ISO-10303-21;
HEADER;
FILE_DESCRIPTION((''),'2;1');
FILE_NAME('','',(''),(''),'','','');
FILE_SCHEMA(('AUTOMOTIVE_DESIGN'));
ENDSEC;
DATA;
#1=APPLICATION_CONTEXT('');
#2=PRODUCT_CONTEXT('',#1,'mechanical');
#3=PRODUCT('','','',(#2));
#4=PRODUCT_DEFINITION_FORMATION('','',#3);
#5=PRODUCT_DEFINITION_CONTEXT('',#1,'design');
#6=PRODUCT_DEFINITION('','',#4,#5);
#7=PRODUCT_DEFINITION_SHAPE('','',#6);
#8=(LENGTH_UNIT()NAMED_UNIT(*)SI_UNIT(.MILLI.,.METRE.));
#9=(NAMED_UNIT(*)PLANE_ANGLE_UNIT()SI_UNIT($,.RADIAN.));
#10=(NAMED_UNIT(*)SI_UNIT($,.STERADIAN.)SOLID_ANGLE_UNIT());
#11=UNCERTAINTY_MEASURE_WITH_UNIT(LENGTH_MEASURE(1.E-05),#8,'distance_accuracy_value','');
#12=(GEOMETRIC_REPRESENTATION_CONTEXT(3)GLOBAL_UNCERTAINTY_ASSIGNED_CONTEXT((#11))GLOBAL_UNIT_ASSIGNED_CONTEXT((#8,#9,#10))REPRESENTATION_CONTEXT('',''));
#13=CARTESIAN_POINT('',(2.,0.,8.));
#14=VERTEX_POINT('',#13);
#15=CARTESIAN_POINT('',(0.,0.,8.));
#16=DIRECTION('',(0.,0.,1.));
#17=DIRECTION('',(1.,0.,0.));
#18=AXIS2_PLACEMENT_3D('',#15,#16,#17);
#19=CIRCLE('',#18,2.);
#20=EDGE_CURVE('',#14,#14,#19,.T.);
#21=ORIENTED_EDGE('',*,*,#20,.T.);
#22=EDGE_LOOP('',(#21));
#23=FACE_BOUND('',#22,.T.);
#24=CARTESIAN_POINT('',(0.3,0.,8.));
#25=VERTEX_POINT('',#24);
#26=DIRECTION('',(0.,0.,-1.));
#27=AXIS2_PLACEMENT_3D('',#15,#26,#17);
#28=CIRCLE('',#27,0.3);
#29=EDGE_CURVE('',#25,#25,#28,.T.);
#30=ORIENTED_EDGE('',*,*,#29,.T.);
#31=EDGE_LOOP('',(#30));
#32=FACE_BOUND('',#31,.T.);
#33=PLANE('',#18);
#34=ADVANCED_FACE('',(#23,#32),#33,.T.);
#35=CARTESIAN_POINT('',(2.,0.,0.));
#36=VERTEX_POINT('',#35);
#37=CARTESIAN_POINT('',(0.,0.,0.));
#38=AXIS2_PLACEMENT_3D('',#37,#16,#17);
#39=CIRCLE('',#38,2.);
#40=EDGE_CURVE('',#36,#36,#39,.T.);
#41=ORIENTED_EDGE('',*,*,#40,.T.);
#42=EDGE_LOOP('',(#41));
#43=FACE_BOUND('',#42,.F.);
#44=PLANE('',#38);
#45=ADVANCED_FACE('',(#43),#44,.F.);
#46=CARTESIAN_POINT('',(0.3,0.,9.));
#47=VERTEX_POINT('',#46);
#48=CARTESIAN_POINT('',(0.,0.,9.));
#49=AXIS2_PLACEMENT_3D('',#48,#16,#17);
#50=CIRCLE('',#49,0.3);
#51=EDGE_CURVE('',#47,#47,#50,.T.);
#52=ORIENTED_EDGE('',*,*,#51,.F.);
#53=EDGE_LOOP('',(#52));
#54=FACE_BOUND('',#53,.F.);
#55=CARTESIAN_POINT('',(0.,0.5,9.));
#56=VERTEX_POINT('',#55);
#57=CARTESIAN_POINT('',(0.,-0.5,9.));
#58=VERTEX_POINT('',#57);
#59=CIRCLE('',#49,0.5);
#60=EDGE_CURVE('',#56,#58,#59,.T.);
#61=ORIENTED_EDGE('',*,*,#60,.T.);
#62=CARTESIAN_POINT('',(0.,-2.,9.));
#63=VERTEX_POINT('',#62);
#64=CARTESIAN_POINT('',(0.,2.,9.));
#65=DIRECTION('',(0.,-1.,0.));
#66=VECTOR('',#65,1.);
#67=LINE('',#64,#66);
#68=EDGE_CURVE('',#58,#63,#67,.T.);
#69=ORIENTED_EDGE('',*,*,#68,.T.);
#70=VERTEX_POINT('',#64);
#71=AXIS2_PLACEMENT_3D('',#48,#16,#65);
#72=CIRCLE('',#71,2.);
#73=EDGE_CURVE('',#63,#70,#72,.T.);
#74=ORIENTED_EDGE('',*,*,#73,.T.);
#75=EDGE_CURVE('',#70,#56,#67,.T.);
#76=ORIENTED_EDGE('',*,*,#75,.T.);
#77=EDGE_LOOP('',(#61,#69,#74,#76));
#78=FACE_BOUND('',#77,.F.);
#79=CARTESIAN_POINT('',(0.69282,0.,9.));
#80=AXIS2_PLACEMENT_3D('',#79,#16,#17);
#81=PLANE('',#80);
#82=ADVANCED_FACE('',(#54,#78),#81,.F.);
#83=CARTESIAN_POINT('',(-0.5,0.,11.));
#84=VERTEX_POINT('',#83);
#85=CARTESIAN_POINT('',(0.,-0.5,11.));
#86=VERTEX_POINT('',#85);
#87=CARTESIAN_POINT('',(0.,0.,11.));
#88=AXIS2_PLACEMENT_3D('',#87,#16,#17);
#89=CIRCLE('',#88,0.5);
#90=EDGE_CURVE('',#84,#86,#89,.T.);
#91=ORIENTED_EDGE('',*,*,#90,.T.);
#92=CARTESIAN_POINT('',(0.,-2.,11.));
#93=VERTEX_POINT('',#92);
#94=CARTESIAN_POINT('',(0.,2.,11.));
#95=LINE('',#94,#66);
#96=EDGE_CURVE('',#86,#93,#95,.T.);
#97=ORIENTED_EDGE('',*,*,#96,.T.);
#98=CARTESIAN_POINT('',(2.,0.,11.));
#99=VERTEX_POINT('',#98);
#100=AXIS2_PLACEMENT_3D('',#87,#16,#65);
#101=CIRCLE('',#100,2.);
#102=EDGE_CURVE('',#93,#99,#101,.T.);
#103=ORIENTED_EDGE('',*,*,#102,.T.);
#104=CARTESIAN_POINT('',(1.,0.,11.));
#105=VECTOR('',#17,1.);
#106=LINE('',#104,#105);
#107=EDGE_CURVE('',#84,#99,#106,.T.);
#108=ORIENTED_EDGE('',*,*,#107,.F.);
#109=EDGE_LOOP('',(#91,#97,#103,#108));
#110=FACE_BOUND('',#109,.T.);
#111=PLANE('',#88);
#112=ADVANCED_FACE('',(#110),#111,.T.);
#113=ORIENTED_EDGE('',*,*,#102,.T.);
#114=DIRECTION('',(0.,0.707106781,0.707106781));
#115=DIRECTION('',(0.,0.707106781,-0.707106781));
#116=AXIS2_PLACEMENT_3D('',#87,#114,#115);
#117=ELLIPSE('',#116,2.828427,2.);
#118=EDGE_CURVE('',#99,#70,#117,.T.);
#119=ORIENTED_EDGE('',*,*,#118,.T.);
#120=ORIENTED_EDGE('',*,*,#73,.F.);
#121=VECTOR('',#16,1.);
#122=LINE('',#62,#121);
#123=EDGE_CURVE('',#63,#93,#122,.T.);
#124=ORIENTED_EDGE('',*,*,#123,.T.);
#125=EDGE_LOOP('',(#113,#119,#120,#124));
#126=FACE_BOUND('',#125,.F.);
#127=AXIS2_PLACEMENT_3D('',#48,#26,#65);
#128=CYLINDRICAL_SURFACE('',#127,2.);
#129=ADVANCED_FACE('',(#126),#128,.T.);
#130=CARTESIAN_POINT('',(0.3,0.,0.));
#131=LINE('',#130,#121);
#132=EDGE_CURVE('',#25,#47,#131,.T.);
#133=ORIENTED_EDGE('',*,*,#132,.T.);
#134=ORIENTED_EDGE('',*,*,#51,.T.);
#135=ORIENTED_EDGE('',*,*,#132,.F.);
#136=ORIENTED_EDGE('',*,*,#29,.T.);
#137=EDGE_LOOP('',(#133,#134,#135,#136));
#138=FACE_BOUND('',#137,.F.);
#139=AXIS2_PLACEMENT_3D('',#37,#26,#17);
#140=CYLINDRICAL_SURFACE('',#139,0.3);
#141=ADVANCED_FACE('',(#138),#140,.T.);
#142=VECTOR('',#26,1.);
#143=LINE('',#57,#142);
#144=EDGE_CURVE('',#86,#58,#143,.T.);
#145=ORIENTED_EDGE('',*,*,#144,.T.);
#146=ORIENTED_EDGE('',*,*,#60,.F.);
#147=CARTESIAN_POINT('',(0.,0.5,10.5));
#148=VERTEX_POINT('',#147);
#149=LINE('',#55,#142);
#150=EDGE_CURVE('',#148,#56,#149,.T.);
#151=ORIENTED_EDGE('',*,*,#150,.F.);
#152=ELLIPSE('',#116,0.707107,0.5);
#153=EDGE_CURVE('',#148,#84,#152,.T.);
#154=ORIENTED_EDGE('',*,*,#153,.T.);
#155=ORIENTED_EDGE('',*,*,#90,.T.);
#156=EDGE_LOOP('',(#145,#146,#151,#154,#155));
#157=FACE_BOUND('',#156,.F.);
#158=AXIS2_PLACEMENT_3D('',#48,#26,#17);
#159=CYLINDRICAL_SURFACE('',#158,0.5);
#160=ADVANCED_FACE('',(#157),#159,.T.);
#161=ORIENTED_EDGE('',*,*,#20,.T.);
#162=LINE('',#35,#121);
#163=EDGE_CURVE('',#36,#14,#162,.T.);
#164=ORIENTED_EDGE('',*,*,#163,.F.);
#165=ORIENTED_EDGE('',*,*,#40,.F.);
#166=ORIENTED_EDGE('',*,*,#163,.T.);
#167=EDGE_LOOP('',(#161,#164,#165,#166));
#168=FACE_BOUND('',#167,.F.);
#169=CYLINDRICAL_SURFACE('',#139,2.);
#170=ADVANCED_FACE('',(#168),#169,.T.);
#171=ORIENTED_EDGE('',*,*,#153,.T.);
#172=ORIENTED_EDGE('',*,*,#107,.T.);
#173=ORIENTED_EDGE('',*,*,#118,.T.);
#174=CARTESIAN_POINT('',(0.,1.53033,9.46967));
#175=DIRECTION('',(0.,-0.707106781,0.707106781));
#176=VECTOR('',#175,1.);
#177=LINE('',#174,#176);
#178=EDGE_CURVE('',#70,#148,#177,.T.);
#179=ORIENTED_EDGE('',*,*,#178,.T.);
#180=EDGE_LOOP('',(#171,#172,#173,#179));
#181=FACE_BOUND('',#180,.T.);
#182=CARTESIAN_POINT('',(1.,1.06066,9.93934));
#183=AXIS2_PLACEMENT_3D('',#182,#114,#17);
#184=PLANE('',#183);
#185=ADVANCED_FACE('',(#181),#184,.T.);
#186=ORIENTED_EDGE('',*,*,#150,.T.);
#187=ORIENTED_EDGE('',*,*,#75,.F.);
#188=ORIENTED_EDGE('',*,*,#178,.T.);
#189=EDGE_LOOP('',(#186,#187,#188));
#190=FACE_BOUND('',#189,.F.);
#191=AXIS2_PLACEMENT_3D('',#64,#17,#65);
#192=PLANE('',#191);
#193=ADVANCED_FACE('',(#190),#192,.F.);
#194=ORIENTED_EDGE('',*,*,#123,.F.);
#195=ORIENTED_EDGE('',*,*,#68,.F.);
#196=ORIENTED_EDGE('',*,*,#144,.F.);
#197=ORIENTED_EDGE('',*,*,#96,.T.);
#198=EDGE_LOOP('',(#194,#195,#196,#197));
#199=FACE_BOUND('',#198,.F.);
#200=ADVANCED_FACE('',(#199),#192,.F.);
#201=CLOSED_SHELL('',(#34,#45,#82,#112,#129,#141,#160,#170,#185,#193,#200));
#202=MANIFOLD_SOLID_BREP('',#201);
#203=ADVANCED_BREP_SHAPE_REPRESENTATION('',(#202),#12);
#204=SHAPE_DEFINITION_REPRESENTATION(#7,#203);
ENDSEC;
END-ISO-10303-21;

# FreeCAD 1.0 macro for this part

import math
import FreeCAD as App
import Part
import Sketcher


def add_polygon(sketch, points):
    """Adds a closed chain of lines whose ends are joined by coincident constraints."""
    first, n = sketch.GeometryCount, len(points)
    for a, b in zip(points, points[1:] + points[:1]):
        sketch.addGeometry(Part.LineSegment(App.Vector(*a, 0), App.Vector(*b, 0)), False)
    for i in range(n):
        sketch.addConstraint(Sketcher.Constraint("Coincident", first + i, 2, first + (i + 1) % n, 1))

doc = App.newDocument("Part")
body = doc.addObject("PartDesign::Body", "Body")

sketch1 = body.newObject("Sketcher::SketchObject", "Sketch")
sketch1.AttachmentSupport = (doc.getObject("XY_Plane"), [""])
sketch1.MapMode = "FlatFace"
add_polygon(sketch1, [(0, 3), (0, 0), (4, 0), (4, 3)])
sketch1.addConstraint([
    Sketcher.Constraint("Vertical", 0),
    Sketcher.Constraint("Horizontal", 1),
    Sketcher.Constraint("Vertical", 2),
    Sketcher.Constraint("Horizontal", 3),
    Sketcher.Constraint("Coincident", 0, 2, -1, 1),
    Sketcher.Constraint("DistanceX", 1, 1, 1, 2, 4.0),
    Sketcher.Constraint("DistanceY", 0, 2, 0, 1, 3.0),
])
pad1 = body.newObject("PartDesign::Pad", "Pad")
pad1.Profile = sketch1
pad1.Length = 2
body2 = doc.addObject("PartDesign::Body", "Body001")
doc.recompute()

body.Placement = App.Placement(App.Vector(0, 0, 0), App.Rotation(App.Vector(1, 0, 0), 315))
boolean = body2.newObject("PartDesign::Boolean", "Boolean")
boolean.Type = "Fuse"
boolean.addObjects([body])
body3 = doc.addObject("PartDesign::Body", "Body002")
doc.recompute()

body2.Placement = App.Placement(App.Vector(-1, 0, 11), App.Rotation(App.Vector(0, 0, 1), 0))
boolean2 = body3.newObject("PartDesign::Boolean", "Boolean001")
boolean2.Type = "Fuse"
boolean2.addObjects([body2])
body4 = doc.addObject("PartDesign::Body", "Body003")

sketch2 = body4.newObject("Sketcher::SketchObject", "Sketch001")
sketch2.AttachmentSupport = (doc.getObject("XY_Plane003"), [""])
sketch2.MapMode = "FlatFace"
sketch2.addGeometry(Part.Circle(App.Vector(0, 0, 0), App.Vector(0, 0, 1), 0.3), False)
sketch2.addConstraint([
    Sketcher.Constraint("Coincident", 0, 3, -1, 1),
    Sketcher.Constraint("Diameter", 0, 0.6),
])
pad2 = body4.newObject("PartDesign::Pad", "Pad001")
pad2.Profile = sketch2
pad2.Length = 11
body5 = doc.addObject("PartDesign::Body", "Body004")

sketch3 = body5.newObject("Sketcher::SketchObject", "Sketch002")
sketch3.AttachmentSupport = (doc.getObject("XY_Plane004"), [""])
sketch3.MapMode = "FlatFace"
sketch3.addGeometry(Part.Circle(App.Vector(0, 0, 0), App.Vector(0, 0, 1), 2), False)
sketch3.addConstraint([
    Sketcher.Constraint("Coincident", 0, 3, -1, 1),
    Sketcher.Constraint("Diameter", 0, 4.0),
])
pad3 = body5.newObject("PartDesign::Pad", "Pad002")
pad3.Profile = sketch3
pad3.Length = 8
body6 = doc.addObject("PartDesign::Body", "Body005")

sketch4 = body6.newObject("Sketcher::SketchObject", "Sketch003")
sketch4.AttachmentSupport = (doc.getObject("XY_Plane005"), [""])
sketch4.MapMode = "FlatFace"
sketch4.AttachmentOffset = App.Placement(App.Vector(0, 0, 9), App.Rotation())
sketch4.addGeometry(Part.Circle(App.Vector(0, 0, 0), App.Vector(0, 0, 1), 0.5), False)
sketch4.addConstraint([
    Sketcher.Constraint("Coincident", 0, 3, -1, 1),
    Sketcher.Constraint("Diameter", 0, 1.0),
])
pad4 = body6.newObject("PartDesign::Pad", "Pad003")
pad4.Profile = sketch4
pad4.Length = 2
body7 = doc.addObject("PartDesign::Body", "Body006")

sketch5 = body7.newObject("Sketcher::SketchObject", "Sketch004")
sketch5.AttachmentSupport = (doc.getObject("XY_Plane006"), [""])
sketch5.MapMode = "FlatFace"
sketch5.AttachmentOffset = App.Placement(App.Vector(0, 0, 9), App.Rotation())
sketch5.addGeometry([
    Part.LineSegment(App.Vector(0, 2, 0), App.Vector(0, -2, 0)),
    Part.ArcOfCircle(Part.Circle(App.Vector(0, 0, 0), App.Vector(0, 0, 1), 2), math.radians(-90), math.radians(90)),
], False)
sketch5.addConstraint([
    Sketcher.Constraint("Coincident", 0, 1, 1, 2),
    Sketcher.Constraint("Coincident", 1, 1, 0, 2),
    Sketcher.Constraint("Vertical", 0),
    Sketcher.Constraint("Coincident", 1, 3, -1, 1),
    Sketcher.Constraint("PointOnObject", 0, 1, -2),
    Sketcher.Constraint("Radius", 1, 2.0),
])
pad5 = body7.newObject("PartDesign::Pad", "Pad004")
pad5.Profile = sketch5
pad5.Length = 2
doc.recompute()

boolean3 = body7.newObject("PartDesign::Boolean", "Boolean002")
boolean3.Type = "Fuse"
boolean3.addObjects([body4])
doc.recompute()

boolean4 = body7.newObject("PartDesign::Boolean", "Boolean003")
boolean4.Type = "Fuse"
boolean4.addObjects([body5])
doc.recompute()

boolean5 = body7.newObject("PartDesign::Boolean", "Boolean004")
boolean5.Type = "Fuse"
boolean5.addObjects([body6])
doc.recompute()

boolean6 = body7.newObject("PartDesign::Boolean", "Boolean005")
boolean6.Type = "Cut"
boolean6.addObjects([body3])

doc.recompute()
